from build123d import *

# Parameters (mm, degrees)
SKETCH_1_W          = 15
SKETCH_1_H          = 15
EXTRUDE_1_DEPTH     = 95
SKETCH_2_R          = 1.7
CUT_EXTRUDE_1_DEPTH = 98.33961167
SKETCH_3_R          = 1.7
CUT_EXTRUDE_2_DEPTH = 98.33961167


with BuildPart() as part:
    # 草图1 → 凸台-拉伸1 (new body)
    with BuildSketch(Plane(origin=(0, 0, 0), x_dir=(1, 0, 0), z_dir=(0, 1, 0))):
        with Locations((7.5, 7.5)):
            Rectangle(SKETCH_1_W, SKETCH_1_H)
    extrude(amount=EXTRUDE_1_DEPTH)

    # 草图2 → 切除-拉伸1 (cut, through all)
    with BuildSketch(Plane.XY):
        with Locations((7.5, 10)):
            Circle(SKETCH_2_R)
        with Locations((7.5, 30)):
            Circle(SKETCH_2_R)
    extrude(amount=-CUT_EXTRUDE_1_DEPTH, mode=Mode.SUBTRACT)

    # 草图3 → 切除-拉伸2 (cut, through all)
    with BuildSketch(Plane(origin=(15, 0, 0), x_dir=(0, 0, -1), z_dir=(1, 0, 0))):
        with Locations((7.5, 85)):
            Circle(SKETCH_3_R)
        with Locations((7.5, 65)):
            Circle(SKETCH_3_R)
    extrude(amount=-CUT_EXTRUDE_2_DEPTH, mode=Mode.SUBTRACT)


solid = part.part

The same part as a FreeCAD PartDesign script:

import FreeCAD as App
import Part
import Sketcher
from FreeCAD import Vector

doc = App.newDocument("Part")
body = doc.addObject("PartDesign::Body", "Body")

sketch1 = doc.addObject("Sketcher::SketchObject", "Sketch")
body.addObject(sketch1)
sketch1.AttachmentSupport = (doc.XZ_Plane, [""])
sketch1.MapMode = "FlatFace"
sketch1.addGeometry(Part.LineSegment(Vector(0, -15, 0), Vector(0, 0, 0)), False)
sketch1.addGeometry(Part.LineSegment(Vector(0, 0, 0), Vector(15, 0, 0)), False)
sketch1.addGeometry(Part.LineSegment(Vector(15, 0, 0), Vector(15, -15, 0)), False)
sketch1.addGeometry(Part.LineSegment(Vector(15, -15, 0), Vector(0, -15, 0)), False)
sketch1.addConstraint(Sketcher.Constraint("Coincident", 0, 2, 1, 1))
sketch1.addConstraint(Sketcher.Constraint("Coincident", 1, 2, 2, 1))
sketch1.addConstraint(Sketcher.Constraint("Coincident", 2, 2, 3, 1))
sketch1.addConstraint(Sketcher.Constraint("Coincident", 3, 2, 0, 1))
sketch1.addConstraint(Sketcher.Constraint("Vertical", 0))
sketch1.addConstraint(Sketcher.Constraint("Horizontal", 1))
sketch1.addConstraint(Sketcher.Constraint("Vertical", 2))
sketch1.addConstraint(Sketcher.Constraint("Horizontal", 3))
sketch1.addConstraint(Sketcher.Constraint("Coincident", 0, 2, -1, 1))
sketch1.addConstraint(Sketcher.Constraint("Equal", 3, 0))
sketch1.addConstraint(Sketcher.Constraint("DistanceX", 1, 1, 1, 2, 15.0))
pad1 = doc.addObject("PartDesign::Pad", "Pad")
body.addObject(pad1)
pad1.Profile = sketch1
pad1.Length = 95
pad1.Reversed = True

sketch2 = doc.addObject("Sketcher::SketchObject", "Sketch001")
body.addObject(sketch2)
sketch2.AttachmentSupport = (doc.XY_Plane, [""])
sketch2.MapMode = "FlatFace"
sketch2.addGeometry(Part.Circle(Vector(7.5, 10, 0), Vector(0, 0, 1), 1.7), False)
sketch2.addGeometry(Part.Circle(Vector(7.5, 30, 0), Vector(0, 0, 1), 1.7), False)
sketch2.addConstraint(Sketcher.Constraint("Equal", 0, 1))
sketch2.addConstraint(Sketcher.Constraint("Vertical", 0, 3, 1, 3))
sketch2.addConstraint(Sketcher.Constraint("Diameter", 0, 3.4))
sketch2.addConstraint(Sketcher.Constraint("DistanceY", -1, 1, 0, 3, 10.0))
sketch2.addConstraint(Sketcher.Constraint("DistanceY", -1, 1, 1, 3, 30.0))
sketch2.addConstraint(Sketcher.Constraint("DistanceX", -1, 1, 0, 3, 7.5))
pocket1 = doc.addObject("PartDesign::Pocket", "Pocket")
body.addObject(pocket1)
pocket1.Profile = sketch2
pocket1.Type = "ThroughAll"

sketch3 = doc.addObject("Sketcher::SketchObject", "Sketch002")
body.addObject(sketch3)
sketch3.AttachmentSupport = (doc.YZ_Plane, [""])
sketch3.MapMode = "FlatFace"
sketch3.AttachmentOffset = App.Placement(Vector(0, 0, 15), App.Rotation())
sketch3.addGeometry(Part.Circle(Vector(85, -7.5, 0), Vector(0, 0, 1), 1.7), False)
sketch3.addGeometry(Part.Circle(Vector(65, -7.5, 0), Vector(0, 0, 1), 1.7), False)
sketch3.addConstraint(Sketcher.Constraint("Equal", 0, 1))
sketch3.addConstraint(Sketcher.Constraint("Horizontal", 0, 3, 1, 3))
sketch3.addConstraint(Sketcher.Constraint("Diameter", 0, 3.4))
sketch3.addConstraint(Sketcher.Constraint("DistanceX", -1, 1, 0, 3, 85.0))
sketch3.addConstraint(Sketcher.Constraint("DistanceX", -1, 1, 1, 3, 65.0))
sketch3.addConstraint(Sketcher.Constraint("DistanceY", 0, 3, -1, 1, 7.5))
pocket2 = doc.addObject("PartDesign::Pocket", "Pocket001")
body.addObject(pocket2)
pocket2.Profile = sketch3
pocket2.Type = "ThroughAll"

doc.recompute()
